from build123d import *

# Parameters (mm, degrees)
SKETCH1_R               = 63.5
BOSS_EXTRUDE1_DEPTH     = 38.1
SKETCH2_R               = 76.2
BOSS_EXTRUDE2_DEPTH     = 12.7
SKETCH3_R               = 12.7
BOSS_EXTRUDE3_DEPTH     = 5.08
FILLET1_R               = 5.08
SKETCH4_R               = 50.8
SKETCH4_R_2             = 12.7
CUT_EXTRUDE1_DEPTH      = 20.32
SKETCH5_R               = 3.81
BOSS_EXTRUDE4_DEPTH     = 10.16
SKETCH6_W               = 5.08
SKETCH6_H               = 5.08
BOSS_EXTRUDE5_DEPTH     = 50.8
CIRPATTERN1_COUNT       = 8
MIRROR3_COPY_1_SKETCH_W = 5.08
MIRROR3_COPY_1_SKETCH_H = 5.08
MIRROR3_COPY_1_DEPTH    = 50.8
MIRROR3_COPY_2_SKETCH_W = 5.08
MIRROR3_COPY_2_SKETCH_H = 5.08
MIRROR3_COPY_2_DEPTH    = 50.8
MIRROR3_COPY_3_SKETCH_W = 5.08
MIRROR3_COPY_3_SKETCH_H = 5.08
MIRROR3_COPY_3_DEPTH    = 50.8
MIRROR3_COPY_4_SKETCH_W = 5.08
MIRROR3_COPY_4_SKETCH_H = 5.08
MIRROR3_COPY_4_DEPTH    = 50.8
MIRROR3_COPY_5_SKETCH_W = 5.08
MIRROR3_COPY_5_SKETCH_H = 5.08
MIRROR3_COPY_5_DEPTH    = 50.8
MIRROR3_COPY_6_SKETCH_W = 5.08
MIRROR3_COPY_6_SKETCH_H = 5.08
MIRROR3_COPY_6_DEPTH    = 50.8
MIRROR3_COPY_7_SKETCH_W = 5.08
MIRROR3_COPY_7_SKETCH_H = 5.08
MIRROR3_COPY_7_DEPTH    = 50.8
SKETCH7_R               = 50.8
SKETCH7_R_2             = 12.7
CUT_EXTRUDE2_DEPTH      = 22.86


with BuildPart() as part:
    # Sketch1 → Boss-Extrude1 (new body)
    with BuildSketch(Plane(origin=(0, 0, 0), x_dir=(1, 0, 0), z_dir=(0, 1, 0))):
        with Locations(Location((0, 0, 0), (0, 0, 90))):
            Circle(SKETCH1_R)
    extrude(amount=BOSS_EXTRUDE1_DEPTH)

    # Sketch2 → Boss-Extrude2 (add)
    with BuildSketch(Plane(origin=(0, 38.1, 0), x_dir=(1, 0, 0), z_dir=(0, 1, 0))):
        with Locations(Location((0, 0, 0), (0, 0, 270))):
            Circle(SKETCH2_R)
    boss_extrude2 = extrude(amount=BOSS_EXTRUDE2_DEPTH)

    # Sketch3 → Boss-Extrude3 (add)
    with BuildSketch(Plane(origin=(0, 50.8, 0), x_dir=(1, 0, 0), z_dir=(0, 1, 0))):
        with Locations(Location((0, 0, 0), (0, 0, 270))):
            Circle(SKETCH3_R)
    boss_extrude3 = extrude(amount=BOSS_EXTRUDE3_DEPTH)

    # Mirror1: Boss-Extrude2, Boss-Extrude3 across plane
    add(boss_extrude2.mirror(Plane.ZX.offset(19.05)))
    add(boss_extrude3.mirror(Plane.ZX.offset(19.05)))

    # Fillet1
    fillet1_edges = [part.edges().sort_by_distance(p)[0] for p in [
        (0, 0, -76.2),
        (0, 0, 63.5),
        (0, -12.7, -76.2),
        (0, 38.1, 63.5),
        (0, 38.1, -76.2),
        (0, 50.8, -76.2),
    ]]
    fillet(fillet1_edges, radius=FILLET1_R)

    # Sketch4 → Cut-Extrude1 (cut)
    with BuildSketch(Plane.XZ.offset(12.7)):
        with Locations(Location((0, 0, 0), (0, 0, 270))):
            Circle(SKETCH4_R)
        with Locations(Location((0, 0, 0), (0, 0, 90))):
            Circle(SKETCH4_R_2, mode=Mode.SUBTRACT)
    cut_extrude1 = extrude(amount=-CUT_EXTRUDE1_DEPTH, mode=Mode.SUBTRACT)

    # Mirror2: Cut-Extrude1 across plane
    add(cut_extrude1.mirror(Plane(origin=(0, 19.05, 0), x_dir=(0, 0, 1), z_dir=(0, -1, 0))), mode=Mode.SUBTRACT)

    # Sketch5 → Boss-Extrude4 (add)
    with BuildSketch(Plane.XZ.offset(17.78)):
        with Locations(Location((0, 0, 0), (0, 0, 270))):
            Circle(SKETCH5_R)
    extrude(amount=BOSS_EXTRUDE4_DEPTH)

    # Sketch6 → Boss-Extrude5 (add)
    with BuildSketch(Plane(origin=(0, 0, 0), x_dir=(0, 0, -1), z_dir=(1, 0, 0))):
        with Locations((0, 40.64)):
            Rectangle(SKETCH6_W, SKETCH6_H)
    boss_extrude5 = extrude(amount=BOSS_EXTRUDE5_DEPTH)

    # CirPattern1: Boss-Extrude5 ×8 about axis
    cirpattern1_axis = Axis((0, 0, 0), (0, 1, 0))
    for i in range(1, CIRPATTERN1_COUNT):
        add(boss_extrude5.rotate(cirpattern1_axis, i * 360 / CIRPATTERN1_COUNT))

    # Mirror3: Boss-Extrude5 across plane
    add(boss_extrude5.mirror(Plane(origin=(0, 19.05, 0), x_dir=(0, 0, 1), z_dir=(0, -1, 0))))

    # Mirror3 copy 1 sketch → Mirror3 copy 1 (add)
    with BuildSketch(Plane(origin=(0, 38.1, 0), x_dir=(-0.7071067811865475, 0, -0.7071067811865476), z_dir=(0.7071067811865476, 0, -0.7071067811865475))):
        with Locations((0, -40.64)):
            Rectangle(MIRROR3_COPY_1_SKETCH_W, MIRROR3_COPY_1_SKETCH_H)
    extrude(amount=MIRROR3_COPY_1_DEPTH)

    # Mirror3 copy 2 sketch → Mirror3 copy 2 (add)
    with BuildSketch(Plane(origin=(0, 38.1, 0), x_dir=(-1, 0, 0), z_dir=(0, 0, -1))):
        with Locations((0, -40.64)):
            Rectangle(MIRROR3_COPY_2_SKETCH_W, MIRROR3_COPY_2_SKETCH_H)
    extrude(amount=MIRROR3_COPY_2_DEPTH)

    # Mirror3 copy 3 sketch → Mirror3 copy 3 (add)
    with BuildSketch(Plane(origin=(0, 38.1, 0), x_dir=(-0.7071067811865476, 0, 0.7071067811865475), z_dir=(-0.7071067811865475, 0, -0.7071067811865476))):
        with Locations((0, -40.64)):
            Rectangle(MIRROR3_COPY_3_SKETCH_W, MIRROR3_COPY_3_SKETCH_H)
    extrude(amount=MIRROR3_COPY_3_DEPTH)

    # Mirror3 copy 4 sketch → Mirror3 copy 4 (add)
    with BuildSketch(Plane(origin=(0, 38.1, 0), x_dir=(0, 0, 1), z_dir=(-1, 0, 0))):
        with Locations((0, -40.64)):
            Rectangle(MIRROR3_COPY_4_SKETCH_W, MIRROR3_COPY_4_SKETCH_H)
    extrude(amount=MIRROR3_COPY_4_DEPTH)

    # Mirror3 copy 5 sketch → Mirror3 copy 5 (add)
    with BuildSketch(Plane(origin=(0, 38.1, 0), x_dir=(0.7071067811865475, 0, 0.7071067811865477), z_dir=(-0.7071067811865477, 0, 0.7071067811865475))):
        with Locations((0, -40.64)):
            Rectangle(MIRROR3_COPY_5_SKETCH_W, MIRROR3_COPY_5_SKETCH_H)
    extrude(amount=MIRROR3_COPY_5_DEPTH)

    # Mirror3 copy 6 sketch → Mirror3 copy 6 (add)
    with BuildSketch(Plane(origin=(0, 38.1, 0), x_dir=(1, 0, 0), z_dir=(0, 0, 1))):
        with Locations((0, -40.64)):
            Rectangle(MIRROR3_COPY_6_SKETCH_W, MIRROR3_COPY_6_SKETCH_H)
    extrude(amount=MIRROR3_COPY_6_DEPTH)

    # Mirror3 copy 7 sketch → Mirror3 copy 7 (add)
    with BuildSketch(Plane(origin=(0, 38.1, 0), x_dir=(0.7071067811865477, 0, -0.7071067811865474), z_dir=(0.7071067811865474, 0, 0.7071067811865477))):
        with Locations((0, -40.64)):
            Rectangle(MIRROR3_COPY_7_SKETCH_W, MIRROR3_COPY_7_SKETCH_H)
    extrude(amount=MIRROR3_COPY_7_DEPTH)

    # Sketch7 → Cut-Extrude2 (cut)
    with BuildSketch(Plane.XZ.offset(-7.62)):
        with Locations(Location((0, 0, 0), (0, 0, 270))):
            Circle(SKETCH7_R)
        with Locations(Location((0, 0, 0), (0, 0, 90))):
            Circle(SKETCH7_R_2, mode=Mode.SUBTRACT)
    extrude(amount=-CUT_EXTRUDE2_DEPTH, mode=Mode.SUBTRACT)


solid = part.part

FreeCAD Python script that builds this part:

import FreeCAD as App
import Part
import Sketcher

V = App.Vector
Q = App.Units.Quantity


def edges_at(feature, points):
    """Names of the edges that pass closest to the given points."""
    edges = feature.Shape.Edges
    near = lambda p: min(range(len(edges)), key=lambda i: edges[i].distToShape(Part.Vertex(*p))[0])
    return sorted({f"Edge{near(p) + 1}" for p in points})


def add_polygon(sketch, points):
    """Adds a closed chain of lines whose ends are joined by coincident constraints."""
    first, n = sketch.GeometryCount, len(points)
    for a, b in zip(points, points[1:] + points[:1]):
        sketch.addGeometry(Part.LineSegment(App.Vector(*a, 0), App.Vector(*b, 0)), False)
    for i in range(n):
        sketch.addConstraint(Sketcher.Constraint("Coincident", first + i, 2, first + (i + 1) % n, 1))

doc = App.newDocument("Part")
body = doc.addObject("PartDesign::Body", "Body")

# Sketch on XZ plane
sketch1 = doc.addObject("Sketcher::SketchObject", "Sketch")
body.addObject(sketch1)
sketch1.AttachmentSupport = (doc.XZ_Plane, [""])
sketch1.MapMode = "FlatFace"
sketch1.addGeometry(Part.Circle(V(0, 0, 0), V(0, 0, 1), 64), False)
sketch1.addConstraint(Sketcher.Constraint("Coincident", 0, 3, -1, 1))
sketch1.addConstraint(Sketcher.Constraint("Diameter", 0, Q("5 in")))
pad1 = doc.addObject("PartDesign::Pad", "Pad")
body.addObject(pad1)
pad1.Profile = sketch1
pad1.Length = Q("1.5 in")
pad1.Reversed = True

# Sketch on XZ plane
sketch2 = doc.addObject("Sketcher::SketchObject", "Sketch001")
body.addObject(sketch2)
sketch2.AttachmentSupport = (doc.XZ_Plane, [""])
sketch2.MapMode = "FlatFace"
sketch2.AttachmentOffset = App.Placement(V(0, 0, -1.5 * 25.4), App.Rotation())
sketch2.addGeometry(Part.Circle(V(0, 0, 0), V(0, 0, 1), 76), False)
sketch2.addConstraint(Sketcher.Constraint("Coincident", 0, 3, -1, 1))
sketch2.addConstraint(Sketcher.Constraint("Diameter", 0, Q("6 in")))
pad2 = doc.addObject("PartDesign::Pad", "Pad001")
body.addObject(pad2)
pad2.Profile = sketch2
pad2.Length = Q("0.5 in")
pad2.Reversed = True

# Sketch on XZ plane
sketch3 = doc.addObject("Sketcher::SketchObject", "Sketch002")
body.addObject(sketch3)
sketch3.AttachmentSupport = (doc.XZ_Plane, [""])
sketch3.MapMode = "FlatFace"
sketch3.AttachmentOffset = App.Placement(V(0, 0, -2 * 25.4), App.Rotation())
sketch3.addGeometry(Part.Circle(V(0, 0, 0), V(0, 0, 1), 13), False)
sketch3.addConstraint(Sketcher.Constraint("Coincident", 0, 3, -1, 1))
sketch3.addConstraint(Sketcher.Constraint("Diameter", 0, Q("1 in")))
pad3 = doc.addObject("PartDesign::Pad", "Pad002")
body.addObject(pad3)
pad3.Profile = sketch3
pad3.Length = Q("0.2 in")
pad3.Reversed = True
doc.recompute()

datumplane = doc.addObject("PartDesign::Plane", "DatumPlane")
body.addObject(datumplane)
datumplane.AttachmentSupport = (doc.XZ_Plane, [""])
datumplane.MapMode = "FlatFace"
datumplane.AttachmentOffset = App.Placement(V(0, 0, -0.75 * 25.4), App.Rotation())
mirrored = doc.addObject("PartDesign::Mirrored", "Mirrored")
body.addObject(mirrored)
mirrored.Originals = [pad2, pad3]
mirrored.MirrorPlane = (datumplane, [""])
body.Tip = mirrored
doc.recompute()

fillet = doc.addObject("PartDesign::Fillet", "Fillet")
body.addObject(fillet)
fillet.Base = (mirrored, edges_at(mirrored, [
    (0, 0, -76.2),
    (0, 0, 63.5),
    (0, -12.7, -76.2),
    (0, 38.1, 63.5),
    (0, 38.1, -76.2),
    (0, 50.8, -76.2),
]))
fillet.Radius = Q("0.2 in")

# Sketch on XZ plane
sketch4 = doc.addObject("Sketcher::SketchObject", "Sketch003")
body.addObject(sketch4)
sketch4.AttachmentSupport = (doc.XZ_Plane, [""])
sketch4.MapMode = "FlatFace"
sketch4.AttachmentOffset = App.Placement(V(0, 0, 0.5 * 25.4), App.Rotation())
sketch4.addGeometry(Part.Circle(V(0, 0, 0), V(0, 0, 1), 51), False)
sketch4.addGeometry(Part.Circle(V(0, 0, 0), V(0, 0, 1), 13), False)
sketch4.addConstraint(Sketcher.Constraint("Coincident", 0, 3, -1, 1))
sketch4.addConstraint(Sketcher.Constraint("Coincident", 1, 3, -1, 1))
sketch4.addConstraint(Sketcher.Constraint("Diameter", 0, Q("4 in")))
sketch4.addConstraint(Sketcher.Constraint("Diameter", 1, Q("1 in")))
pocket1 = doc.addObject("PartDesign::Pocket", "Pocket")
body.addObject(pocket1)
pocket1.Profile = sketch4
pocket1.Length = Q("0.8 in")
doc.recompute()

datumplane2 = doc.addObject("PartDesign::Plane", "DatumPlane001")
body.addObject(datumplane2)
datumplane2.AttachmentSupport = (doc.XZ_Plane, [""])
datumplane2.MapMode = "FlatFace"
datumplane2.AttachmentOffset = App.Placement(V(0, 0, -0.75 * 25.4), App.Rotation())
mirrored2 = doc.addObject("PartDesign::Mirrored", "Mirrored001")
body.addObject(mirrored2)
mirrored2.Originals = [pocket1]
mirrored2.MirrorPlane = (datumplane2, [""])
body.Tip = mirrored2

# Sketch on XZ plane
sketch5 = doc.addObject("Sketcher::SketchObject", "Sketch004")
body.addObject(sketch5)
sketch5.AttachmentSupport = (doc.XZ_Plane, [""])
sketch5.MapMode = "FlatFace"
sketch5.AttachmentOffset = App.Placement(V(0, 0, 0.7 * 25.4), App.Rotation())
sketch5.addGeometry(Part.Circle(V(0, 0, 0), V(0, 0, 1), 3.8), False)
sketch5.addConstraint(Sketcher.Constraint("Coincident", 0, 3, -1, 1))
sketch5.addConstraint(Sketcher.Constraint("Diameter", 0, Q("0.3 in")))
pad4 = doc.addObject("PartDesign::Pad", "Pad003")
body.addObject(pad4)
pad4.Profile = sketch5
pad4.Length = Q("0.4 in")

# Sketch on YZ plane
sketch6 = doc.addObject("Sketcher::SketchObject", "Sketch005")
body.addObject(sketch6)
sketch6.AttachmentSupport = (doc.YZ_Plane, [""])
sketch6.MapMode = "FlatFace"
add_polygon(sketch6, [(43, 3), (38, 3), (38, -3), (43, -3)])  # lines 0-3
sketch6.addConstraint(Sketcher.Constraint("Horizontal", 0))
sketch6.addConstraint(Sketcher.Constraint("Vertical", 1))
sketch6.addConstraint(Sketcher.Constraint("Horizontal", 2))
sketch6.addConstraint(Sketcher.Constraint("Vertical", 3))
sketch6.addConstraint(Sketcher.Constraint("Equal", 2, 1))
sketch6.addConstraint(Sketcher.Constraint("DistanceX", 0, 2, 0, 1, Q("0.2 in")))
sketch6.addConstraint(Sketcher.Constraint("DistanceX", -1, 1, 0, 2, Q("1.5 in")))
sketch6.addConstraint(Sketcher.Constraint("DistanceY", -1, 1, 0, 2, Q("0.1 in")))
pad5 = doc.addObject("PartDesign::Pad", "Pad004")
body.addObject(pad5)
pad5.Profile = sketch6
pad5.Length = Q("2 in")
doc.recompute()

polarpattern = doc.addObject("PartDesign::PolarPattern", "PolarPattern")
body.addObject(polarpattern)
polarpattern.Originals = [pad5]
polarpattern.Axis = (doc.Y_Axis, [""])
polarpattern.Angle = 360
polarpattern.Occurrences = 8
body.Tip = polarpattern
doc.recompute()

datumplane3 = doc.addObject("PartDesign::Plane", "DatumPlane002")
body.addObject(datumplane3)
datumplane3.AttachmentSupport = (doc.XZ_Plane, [""])
datumplane3.MapMode = "FlatFace"
datumplane3.AttachmentOffset = App.Placement(V(0, 0, -0.75 * 25.4), App.Rotation())
mirrored3 = doc.addObject("PartDesign::Mirrored", "Mirrored002")
body.addObject(mirrored3)
mirrored3.Originals = [pad5]
mirrored3.MirrorPlane = (datumplane3, [""])
body.Tip = mirrored3

# Sketch on an angled plane
sketch7 = doc.addObject("Sketcher::SketchObject", "Sketch006")
body.addObject(sketch7)
sketch7.Placement = App.Placement(V(0, 38.1, 0), App.Rotation(V(-0.707106781, 0, -0.707106781), V(0, 0.999999999, 0), V(0.707106781, 0, -0.707106781), "ZXY"))
add_polygon(sketch7, [(-3, -38), (-3, -43), (3, -43), (3, -38)])  # lines 0-3
sketch7.addConstraint(Sketcher.Constraint("Vertical", 0))
sketch7.addConstraint(Sketcher.Constraint("Horizontal", 1))
sketch7.addConstraint(Sketcher.Constraint("Vertical", 2))
sketch7.addConstraint(Sketcher.Constraint("Horizontal", 3))
sketch7.addConstraint(Sketcher.Constraint("Equal", 3, 0))
sketch7.addConstraint(Sketcher.Constraint("DistanceX", 1, 1, 1, 2, Q("0.2 in")))
sketch7.addConstraint(Sketcher.Constraint("DistanceX", 0, 2, -1, 1, Q("0.1 in")))
sketch7.addConstraint(Sketcher.Constraint("DistanceY", 0, 2, -1, 1, Q("1.7 in")))
pad6 = doc.addObject("PartDesign::Pad", "Pad005")
body.addObject(pad6)
pad6.Profile = sketch7
pad6.Length = Q("2 in")

# Sketch on XY plane
sketch8 = doc.addObject("Sketcher::SketchObject", "Sketch007")
body.addObject(sketch8)
sketch8.AttachmentSupport = (doc.XY_Plane, [""])
sketch8.MapMode = "FlatFace"
add_polygon(sketch8, [(3, 0), (3, -5), (-3, -5), (-3, 0)])  # lines 0-3
sketch8.addConstraint(Sketcher.Constraint("Vertical", 0))
sketch8.addConstraint(Sketcher.Constraint("Horizontal", 1))
sketch8.addConstraint(Sketcher.Constraint("Vertical", 2))
sketch8.addConstraint(Sketcher.Constraint("Horizontal", 3))
sketch8.addConstraint(Sketcher.Constraint("Symmetric", 2, 2, 3, 2, -1, 1))
sketch8.addConstraint(Sketcher.Constraint("Equal", 3, 0))
sketch8.addConstraint(Sketcher.Constraint("DistanceX", 1, 2, 1, 1, Q("0.2 in")))
pad7 = doc.addObject("PartDesign::Pad", "Pad006")
body.addObject(pad7)
pad7.Profile = sketch8
pad7.Length = Q("2 in")
pad7.Reversed = True

# Sketch on an angled plane
sketch9 = doc.addObject("Sketcher::SketchObject", "Sketch008")
body.addObject(sketch9)
sketch9.Placement = App.Placement(V(0, 38.1, 0), App.Rotation(V(-0.707106781, 0, 0.707106781), V(0, 0.999999999, 0), V(-0.707106781, 0, -0.707106781), "ZXY"))
add_polygon(sketch9, [(-3, -38), (-3, -43), (3, -43), (3, -38)])  # lines 0-3
sketch9.addConstraint(Sketcher.Constraint("Vertical", 0))
sketch9.addConstraint(Sketcher.Constraint("Horizontal", 1))
sketch9.addConstraint(Sketcher.Constraint("Vertical", 2))
sketch9.addConstraint(Sketcher.Constraint("Horizontal", 3))
sketch9.addConstraint(Sketcher.Constraint("Equal", 3, 0))
sketch9.addConstraint(Sketcher.Constraint("DistanceX", 1, 1, 1, 2, Q("0.2 in")))
sketch9.addConstraint(Sketcher.Constraint("DistanceX", 0, 2, -1, 1, Q("0.1 in")))
sketch9.addConstraint(Sketcher.Constraint("DistanceY", 0, 2, -1, 1, Q("1.7 in")))
pad8 = doc.addObject("PartDesign::Pad", "Pad007")
body.addObject(pad8)
pad8.Profile = sketch9
pad8.Length = Q("2 in")

# Sketch on YZ plane
sketch10 = doc.addObject("Sketcher::SketchObject", "Sketch009")
body.addObject(sketch10)
sketch10.AttachmentSupport = (doc.YZ_Plane, [""])
sketch10.MapMode = "FlatFace"
add_polygon(sketch10, [(0, -3), (-5, -3), (-5, 3), (0, 3)])  # lines 0-3
sketch10.addConstraint(Sketcher.Constraint("Horizontal", 0))
sketch10.addConstraint(Sketcher.Constraint("Vertical", 1))
sketch10.addConstraint(Sketcher.Constraint("Horizontal", 2))
sketch10.addConstraint(Sketcher.Constraint("Vertical", 3))
sketch10.addConstraint(Sketcher.Constraint("Symmetric", 2, 2, 3, 2, -1, 1))
sketch10.addConstraint(Sketcher.Constraint("Equal", 2, 1))
sketch10.addConstraint(Sketcher.Constraint("DistanceX", 0, 2, 0, 1, Q("0.2 in")))
pad9 = doc.addObject("PartDesign::Pad", "Pad008")
body.addObject(pad9)
pad9.Profile = sketch10
pad9.Length = Q("2 in")
pad9.Reversed = True

# Sketch on an angled plane
sketch11 = doc.addObject("Sketcher::SketchObject", "Sketch010")
body.addObject(sketch11)
sketch11.Placement = App.Placement(V(0, 38.1, 0), App.Rotation(V(0.707106781, 0, 0.707106781), V(0, 0.999999999, 0), V(-0.707106781, 0, 0.707106781), "ZXY"))
add_polygon(sketch11, [(-3, -38), (-3, -43), (3, -43), (3, -38)])  # lines 0-3
sketch11.addConstraint(Sketcher.Constraint("Vertical", 0))
sketch11.addConstraint(Sketcher.Constraint("Horizontal", 1))
sketch11.addConstraint(Sketcher.Constraint("Vertical", 2))
sketch11.addConstraint(Sketcher.Constraint("Horizontal", 3))
sketch11.addConstraint(Sketcher.Constraint("Equal", 3, 0))
sketch11.addConstraint(Sketcher.Constraint("DistanceX", 1, 1, 1, 2, Q("0.2 in")))
sketch11.addConstraint(Sketcher.Constraint("DistanceX", 0, 2, -1, 1, Q("0.1 in")))
sketch11.addConstraint(Sketcher.Constraint("DistanceY", 0, 2, -1, 1, Q("1.7 in")))
pad10 = doc.addObject("PartDesign::Pad", "Pad009")
body.addObject(pad10)
pad10.Profile = sketch11
pad10.Length = Q("2 in")

# Sketch on XY plane
sketch12 = doc.addObject("Sketcher::SketchObject", "Sketch011")
body.addObject(sketch12)
sketch12.AttachmentSupport = (doc.XY_Plane, [""])
sketch12.MapMode = "FlatFace"
add_polygon(sketch12, [(-3, 0), (-3, -5), (3, -5), (3, 0)])  # lines 0-3
sketch12.addConstraint(Sketcher.Constraint("Vertical", 0))
sketch12.addConstraint(Sketcher.Constraint("Horizontal", 1))
sketch12.addConstraint(Sketcher.Constraint("Vertical", 2))
sketch12.addConstraint(Sketcher.Constraint("Horizontal", 3))
sketch12.addConstraint(Sketcher.Constraint("Symmetric", 2, 2, 3, 2, -1, 1))
sketch12.addConstraint(Sketcher.Constraint("Equal", 3, 0))
sketch12.addConstraint(Sketcher.Constraint("DistanceX", 1, 1, 1, 2, Q("0.2 in")))
pad11 = doc.addObject("PartDesign::Pad", "Pad010")
body.addObject(pad11)
pad11.Profile = sketch12
pad11.Length = Q("2 in")

# Sketch on an angled plane
sketch13 = doc.addObject("Sketcher::SketchObject", "Sketch012")
body.addObject(sketch13)
sketch13.Placement = App.Placement(V(0, 38.1, 0), App.Rotation(V(0.707106781, 0, -0.707106781), V(0, 0.999999999, 0), V(0.707106781, 0, 0.707106781), "ZXY"))
add_polygon(sketch13, [(-3, -38), (-3, -43), (3, -43), (3, -38)])  # lines 0-3
sketch13.addConstraint(Sketcher.Constraint("Vertical", 0))
sketch13.addConstraint(Sketcher.Constraint("Horizontal", 1))
sketch13.addConstraint(Sketcher.Constraint("Vertical", 2))
sketch13.addConstraint(Sketcher.Constraint("Horizontal", 3))
sketch13.addConstraint(Sketcher.Constraint("Equal", 3, 0))
sketch13.addConstraint(Sketcher.Constraint("DistanceX", 1, 1, 1, 2, Q("0.2 in")))
sketch13.addConstraint(Sketcher.Constraint("DistanceX", 0, 2, -1, 1, Q("0.1 in")))
sketch13.addConstraint(Sketcher.Constraint("DistanceY", 0, 2, -1, 1, Q("1.7 in")))
pad12 = doc.addObject("PartDesign::Pad", "Pad011")
body.addObject(pad12)
pad12.Profile = sketch13
pad12.Length = Q("2 in")

# Sketch on XZ plane
sketch14 = doc.addObject("Sketcher::SketchObject", "Sketch013")
body.addObject(sketch14)
sketch14.AttachmentSupport = (doc.XZ_Plane, [""])
sketch14.MapMode = "FlatFace"
sketch14.AttachmentOffset = App.Placement(V(0, 0, -0.3 * 25.4), App.Rotation())
sketch14.addGeometry(Part.Circle(V(0, 0, 0), V(0, 0, 1), 51), False)
sketch14.addGeometry(Part.Circle(V(0, 0, 0), V(0, 0, 1), 13), False)
sketch14.addConstraint(Sketcher.Constraint("Coincident", 0, 3, -1, 1))
sketch14.addConstraint(Sketcher.Constraint("Coincident", 1, 3, -1, 1))
sketch14.addConstraint(Sketcher.Constraint("Diameter", 0, Q("4 in")))
sketch14.addConstraint(Sketcher.Constraint("Diameter", 1, Q("1 in")))
pocket2 = doc.addObject("PartDesign::Pocket", "Pocket001")
body.addObject(pocket2)
pocket2.Profile = sketch14
pocket2.Length = Q("0.9 in")

doc.recompute()
